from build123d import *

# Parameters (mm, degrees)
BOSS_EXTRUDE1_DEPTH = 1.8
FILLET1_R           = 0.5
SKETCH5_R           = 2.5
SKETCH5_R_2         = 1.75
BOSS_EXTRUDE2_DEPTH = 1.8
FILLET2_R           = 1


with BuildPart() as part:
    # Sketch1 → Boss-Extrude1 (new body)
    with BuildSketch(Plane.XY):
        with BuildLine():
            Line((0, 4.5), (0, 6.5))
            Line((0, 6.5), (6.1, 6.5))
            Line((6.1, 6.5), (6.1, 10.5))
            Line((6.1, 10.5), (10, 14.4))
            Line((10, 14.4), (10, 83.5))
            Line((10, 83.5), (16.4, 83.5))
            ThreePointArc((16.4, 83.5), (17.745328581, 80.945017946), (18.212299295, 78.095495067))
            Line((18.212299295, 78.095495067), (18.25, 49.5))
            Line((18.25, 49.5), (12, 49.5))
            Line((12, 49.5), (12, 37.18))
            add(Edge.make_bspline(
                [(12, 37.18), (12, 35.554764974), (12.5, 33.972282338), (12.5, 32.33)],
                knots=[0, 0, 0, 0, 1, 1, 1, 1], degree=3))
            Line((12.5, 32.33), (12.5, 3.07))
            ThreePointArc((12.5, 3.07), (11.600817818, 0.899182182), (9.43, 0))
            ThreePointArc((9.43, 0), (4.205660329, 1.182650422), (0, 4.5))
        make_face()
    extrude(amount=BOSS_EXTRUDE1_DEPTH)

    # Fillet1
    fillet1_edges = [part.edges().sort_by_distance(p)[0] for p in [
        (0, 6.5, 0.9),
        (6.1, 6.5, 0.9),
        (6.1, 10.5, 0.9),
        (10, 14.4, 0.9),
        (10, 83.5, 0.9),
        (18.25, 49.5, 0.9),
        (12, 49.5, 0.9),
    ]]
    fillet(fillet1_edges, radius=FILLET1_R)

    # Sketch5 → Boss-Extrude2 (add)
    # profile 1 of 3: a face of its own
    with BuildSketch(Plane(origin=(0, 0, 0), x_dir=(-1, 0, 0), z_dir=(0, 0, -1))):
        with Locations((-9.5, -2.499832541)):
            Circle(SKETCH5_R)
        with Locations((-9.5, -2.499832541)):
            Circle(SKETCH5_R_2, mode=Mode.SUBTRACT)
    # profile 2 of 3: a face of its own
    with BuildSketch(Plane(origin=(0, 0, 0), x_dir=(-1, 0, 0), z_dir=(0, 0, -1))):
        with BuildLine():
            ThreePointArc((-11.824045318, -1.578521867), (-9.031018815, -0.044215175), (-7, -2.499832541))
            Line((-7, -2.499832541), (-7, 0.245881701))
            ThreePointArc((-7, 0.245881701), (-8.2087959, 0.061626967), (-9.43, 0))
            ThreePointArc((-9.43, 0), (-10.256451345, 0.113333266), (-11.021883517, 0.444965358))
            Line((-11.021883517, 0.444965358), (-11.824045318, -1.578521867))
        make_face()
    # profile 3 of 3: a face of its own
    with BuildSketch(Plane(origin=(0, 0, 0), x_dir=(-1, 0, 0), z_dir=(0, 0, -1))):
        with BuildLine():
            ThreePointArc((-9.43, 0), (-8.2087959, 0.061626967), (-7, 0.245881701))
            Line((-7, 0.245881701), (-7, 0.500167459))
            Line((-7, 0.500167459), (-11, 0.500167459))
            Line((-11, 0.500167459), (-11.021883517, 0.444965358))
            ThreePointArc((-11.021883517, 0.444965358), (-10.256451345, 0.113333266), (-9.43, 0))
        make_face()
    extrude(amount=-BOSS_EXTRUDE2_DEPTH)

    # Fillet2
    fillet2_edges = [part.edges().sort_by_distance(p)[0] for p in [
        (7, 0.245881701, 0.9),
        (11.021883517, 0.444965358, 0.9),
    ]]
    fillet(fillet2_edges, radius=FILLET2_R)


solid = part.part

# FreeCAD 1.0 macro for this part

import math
import FreeCAD as App
import Part
import Sketcher
from FreeCAD import Vector
Q = App.Units.Quantity


def edges_at(feature, points):
    """Names of the edges that pass closest to the given points."""
    edges = feature.Shape.Edges
    near = lambda p: min(range(len(edges)), key=lambda i: edges[i].distToShape(Part.Vertex(*p))[0])
    return sorted({f"Edge{near(p) + 1}" for p in points})

doc = App.newDocument("Part")
body = doc.addObject("PartDesign::Body", "Body")

# Sketch on XY plane
sketch1 = body.newObject("Sketcher::SketchObject", "Sketch")
sketch1.AttachmentSupport = (doc.getObject("XY_Plane"), [""])
sketch1.MapMode = "FlatFace"
sketch1.addGeometry(Part.LineSegment(Vector(0, 6.5, 0), Vector(0, 4.5, 0)), False)
sketch1.addGeometry(Part.ArcOfCircle(Part.Circle(Vector(9.43, 12.130544, 0), Vector(0, 0, 1), 12.130544), math.radians(-141.020993), math.radians(-90)), False)
sketch1.addGeometry(Part.ArcOfCircle(Part.Circle(Vector(9.43, 3.07, 0), Vector(0, 0, 1), 3.07), math.radians(-90), math.radians(0)), False)
sketch1.addGeometry(Part.LineSegment(Vector(12.5, 3.07, 0), Vector(12.5, 32.33, 0)), False)
sketch1.addGeometry(Part.BSplineCurve([Vector(12, 37.18, 0), Vector(12, 35.554765, 0), Vector(12.5, 33.972282, 0), Vector(12.5, 32.33, 0)], [4, 4], [0, 1], False, 3, [1, 1, 1, 1], False), False)
sketch1.addGeometry(Part.LineSegment(Vector(12, 37.18, 0), Vector(12, 49.5, 0)), False)
sketch1.addGeometry(Part.LineSegment(Vector(12, 49.5, 0), Vector(18.25, 49.5, 0)), False)
sketch1.addGeometry(Part.LineSegment(Vector(18.25, 49.5, 0), Vector(18.212299, 78.095495, 0)), False)
sketch1.addGeometry(Part.ArcOfCircle(Part.Circle(Vector(9.212307, 78.083629, 0), Vector(0, 0, 1), 9), math.radians(0.07554), math.radians(37.000283)), False)
sketch1.addGeometry(Part.LineSegment(Vector(16.4, 83.5, 0), Vector(10, 83.5, 0)), False)
sketch1.addGeometry(Part.LineSegment(Vector(10, 83.5, 0), Vector(10, 14.4, 0)), False)
sketch1.addGeometry(Part.LineSegment(Vector(10, 14.4, 0), Vector(6.1, 10.5, 0)), False)
sketch1.addGeometry(Part.LineSegment(Vector(6.1, 10.5, 0), Vector(6.1, 6.5, 0)), False)
sketch1.addGeometry(Part.LineSegment(Vector(6.1, 6.5, 0), Vector(0, 6.5, 0)), False)
sketch1.addConstraint(Sketcher.Constraint("Block", 4))
sketch1.addConstraint(Sketcher.Constraint("Coincident", 0, 2, 1, 1))
sketch1.addConstraint(Sketcher.Constraint("Tangent", 1, 2, 2, 1))
sketch1.addConstraint(Sketcher.Constraint("Tangent", 2, 2, 3, 1))
sketch1.addConstraint(Sketcher.Constraint("Coincident", 3, 2, 4, 2))
sketch1.addConstraint(Sketcher.Constraint("Coincident", 4, 1, 5, 1))
sketch1.addConstraint(Sketcher.Constraint("Coincident", 5, 2, 6, 1))
sketch1.addConstraint(Sketcher.Constraint("Coincident", 6, 2, 7, 1))
sketch1.addConstraint(Sketcher.Constraint("Tangent", 7, 2, 8, 1))
sketch1.addConstraint(Sketcher.Constraint("Coincident", 8, 2, 9, 1))
sketch1.addConstraint(Sketcher.Constraint("Coincident", 9, 2, 10, 1))
sketch1.addConstraint(Sketcher.Constraint("Coincident", 10, 2, 11, 1))
sketch1.addConstraint(Sketcher.Constraint("Coincident", 11, 2, 12, 1))
sketch1.addConstraint(Sketcher.Constraint("Coincident", 12, 2, 13, 1))
sketch1.addConstraint(Sketcher.Constraint("Coincident", 13, 2, 0, 1))
sketch1.addConstraint(Sketcher.Constraint("Vertical", 0))
sketch1.addConstraint(Sketcher.Constraint("Vertical", 3))
sketch1.addConstraint(Sketcher.Constraint("Vertical", 5))
sketch1.addConstraint(Sketcher.Constraint("Horizontal", 6))
sketch1.addConstraint(Sketcher.Constraint("Horizontal", 9))
sketch1.addConstraint(Sketcher.Constraint("Vertical", 10))
sketch1.addConstraint(Sketcher.Constraint("Vertical", 12))
sketch1.addConstraint(Sketcher.Constraint("Horizontal", 13))
sketch1.addConstraint(Sketcher.Constraint("PointOnObject", 0, 2, -2))
sketch1.addConstraint(Sketcher.Constraint("PointOnObject", 1, 2, -1))
sketch1.addConstraint(Sketcher.Constraint("Vertical", 1, 3, 2, 3))
sketch1.addConstraint(Sketcher.Constraint("Radius", 8, Q("9 mm")))
sketch1.addConstraint(Sketcher.Constraint("DistanceY", 0, 2, 0, 1, Q("2 mm")))
sketch1.addConstraint(Sketcher.Constraint("DistanceY", 12, 2, 12, 1, Q("4 mm")))
sketch1.addConstraint(Sketcher.Constraint("Angle", 11, Q("-135 deg")))
sketch1.addConstraint(Sketcher.Constraint("Radius", 2, Q("3.07 mm")))
sketch1.addConstraint(Sketcher.Constraint("DistanceX", 9, 2, 9, 1, Q("6.4 mm")))
sketch1.addConstraint(Sketcher.Constraint("DistanceX", 13, 2, 13, 1, Q("6.1 mm")))
sketch1.addConstraint(Sketcher.Constraint("DistanceY", 10, 2, 10, 1, Q("69.1 mm")))
sketch1.addConstraint(Sketcher.Constraint("DistanceX", -1, 1, 9, 2, Q("10 mm")))
sketch1.addConstraint(Sketcher.Constraint("DistanceY", 6, 2, 8, 2, Q("34 mm")))
sketch1.addConstraint(Sketcher.Constraint("DistanceX", 6, 1, 6, 2, Q("6.25 mm")))
sketch1.addConstraint(Sketcher.Constraint("DistanceY", 5, 1, 5, 2, Q("12.32 mm")))
sketch1.addConstraint(Sketcher.Constraint("DistanceX", -1, 1, 7, 2, Q("18.212299 mm")))
pad1 = body.newObject("PartDesign::Pad", "Pad")
pad1.Profile = sketch1
pad1.Length = 1.8
doc.recompute()

fillet = body.newObject("PartDesign::Fillet", "Fillet")
fillet.Base = (pad1, edges_at(pad1, [
    (0, 6.5, 0.9),
    (6.1, 6.5, 0.9),
    (6.1, 10.5, 0.9),
    (10, 14.4, 0.9),
    (10, 83.5, 0.9),
    (18.25, 49.5, 0.9),
    (12, 49.5, 0.9),
]))
fillet.Radius = 0.5

# Sketch on XY plane
sketch2 = body.newObject("Sketcher::SketchObject", "Sketch001")
sketch2.AttachmentSupport = (doc.getObject("XY_Plane"), [""])
sketch2.MapMode = "FlatFace"
sketch2.addGeometry(Part.ArcOfCircle(Part.Circle(Vector(9.5, -2.5, 0), Vector(0, 0, 1), 2.5), math.radians(180), math.radians(382)), False)
sketch2.addGeometry(Part.LineSegment(Vector(7, -2.5, 0), Vector(7, 0.5, 0)), False)
sketch2.addGeometry(Part.LineSegment(Vector(7, 0.5, 0), Vector(11, 0.5, 0)), False)
sketch2.addGeometry(Part.LineSegment(Vector(11, 0.5, 0), Vector(11.02, 0.44, 0)), False)
sketch2.addGeometry(Part.LineSegment(Vector(11.02, 0.44, 0), Vector(11.82, -1.58, 0)), False)
sketch2.addGeometry(Part.Circle(Vector(9.5, -2.5, 0), Vector(0, 0, 1), 1.75), False)
sketch2.addConstraint(Sketcher.Constraint("Tangent", 0, 1, 1, 1))
sketch2.addConstraint(Sketcher.Constraint("Coincident", 1, 2, 2, 1))
sketch2.addConstraint(Sketcher.Constraint("Coincident", 2, 2, 3, 1))
sketch2.addConstraint(Sketcher.Constraint("Coincident", 3, 2, 4, 1))
sketch2.addConstraint(Sketcher.Constraint("Tangent", 4, 2, 0, 2))
sketch2.addConstraint(Sketcher.Constraint("Vertical", 1))
sketch2.addConstraint(Sketcher.Constraint("Horizontal", 2))
sketch2.addConstraint(Sketcher.Constraint("Coincident", 5, 3, 0, 3))
sketch2.addConstraint(Sketcher.Constraint("Parallel", 3, 4))
sketch2.addConstraint(Sketcher.Constraint("Diameter", 5, Q("3.5 mm")))
sketch2.addConstraint(Sketcher.Constraint("Radius", 0, Q("2.5 mm")))
sketch2.addConstraint(Sketcher.Constraint("DistanceX", 2, 1, 2, 2, Q("4 mm")))
sketch2.addConstraint(Sketcher.Constraint("DistanceY", 1, 1, 1, 2, Q("3 mm")))
sketch2.addConstraint(Sketcher.Constraint("DistanceX", -1, 1, 0, 1, Q("7 mm")))
sketch2.addConstraint(Sketcher.Constraint("Distance", 3, Q("0.059381 mm")))
sketch2.addConstraint(Sketcher.Constraint("DistanceY", 4, 2, -1, 1, Q("1.578522 mm")))
pad2 = body.newObject("PartDesign::Pad", "Pad001")
pad2.Profile = sketch2
pad2.Length = 1.8
doc.recompute()

fillet2 = body.newObject("PartDesign::Fillet", "Fillet001")
fillet2.Base = (pad2, edges_at(pad2, [(7, 0.246, 0.9), (11.022, 0.445, 0.9)]))
fillet2.Radius = 1

doc.recompute()
